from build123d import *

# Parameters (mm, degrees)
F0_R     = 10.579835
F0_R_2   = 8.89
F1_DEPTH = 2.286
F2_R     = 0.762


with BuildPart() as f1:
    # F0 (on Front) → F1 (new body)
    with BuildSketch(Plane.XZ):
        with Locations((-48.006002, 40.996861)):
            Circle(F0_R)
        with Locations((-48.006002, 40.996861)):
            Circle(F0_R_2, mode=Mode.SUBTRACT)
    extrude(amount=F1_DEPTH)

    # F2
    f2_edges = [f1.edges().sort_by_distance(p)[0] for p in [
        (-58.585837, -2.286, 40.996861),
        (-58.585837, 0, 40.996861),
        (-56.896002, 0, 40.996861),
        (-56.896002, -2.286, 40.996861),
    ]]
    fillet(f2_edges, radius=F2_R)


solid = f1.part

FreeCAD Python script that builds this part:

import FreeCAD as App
import Part
import Sketcher
from FreeCAD import Vector
Q = App.Units.Quantity


def edges_at(feature, points):
    """Names of the edges that pass closest to the given points."""
    edges = feature.Shape.Edges
    near = lambda p: min(range(len(edges)), key=lambda i: edges[i].distToShape(Part.Vertex(*p))[0])
    return sorted({f"Edge{near(p) + 1}" for p in points})

doc = App.newDocument("Part")
body = doc.addObject("PartDesign::Body", "Body")

# Sketch on XZ plane
sketch1 = doc.addObject("Sketcher::SketchObject", "Sketch")
body.addObject(sketch1)
sketch1.AttachmentSupport = (doc.XZ_Plane, [""])
sketch1.MapMode = "FlatFace"
sketch1.addGeometry(Part.Circle(Vector(-48, 41, 0), Vector(0, 0, 1), 11), False)
sketch1.addGeometry(Part.Circle(Vector(-48, 41, 0), Vector(0, 0, 1), 9), False)
sketch1.addConstraint(Sketcher.Constraint("Coincident", 1, 3, 0, 3))
sketch1.addConstraint(Sketcher.Constraint("Diameter", 1, Q("0.7 in")))
sketch1.addConstraint(Sketcher.Constraint("DistanceX", 0, 3, -1, 1, Q("1.8900001 in")))
sketch1.addConstraint(Sketcher.Constraint("Diameter", 0, 21.15967))
sketch1.addConstraint(Sketcher.Constraint("DistanceY", -1, 1, 0, 3, 40.996861))
pad1 = doc.addObject("PartDesign::Pad", "Pad")
body.addObject(pad1)
pad1.Profile = sketch1
pad1.Length = Q("0.09 in")
doc.recompute()

fillet = doc.addObject("PartDesign::Fillet", "Fillet")
body.addObject(fillet)
fillet.Base = (pad1, edges_at(pad1, [
    (-58.586, -2.286, 40.997),
    (-58.586, 0, 40.997),
    (-56.896, 0, 40.997),
    (-56.896, -2.286, 40.997),
]))
fillet.Radius = Q("0.03 in")

doc.recompute()
